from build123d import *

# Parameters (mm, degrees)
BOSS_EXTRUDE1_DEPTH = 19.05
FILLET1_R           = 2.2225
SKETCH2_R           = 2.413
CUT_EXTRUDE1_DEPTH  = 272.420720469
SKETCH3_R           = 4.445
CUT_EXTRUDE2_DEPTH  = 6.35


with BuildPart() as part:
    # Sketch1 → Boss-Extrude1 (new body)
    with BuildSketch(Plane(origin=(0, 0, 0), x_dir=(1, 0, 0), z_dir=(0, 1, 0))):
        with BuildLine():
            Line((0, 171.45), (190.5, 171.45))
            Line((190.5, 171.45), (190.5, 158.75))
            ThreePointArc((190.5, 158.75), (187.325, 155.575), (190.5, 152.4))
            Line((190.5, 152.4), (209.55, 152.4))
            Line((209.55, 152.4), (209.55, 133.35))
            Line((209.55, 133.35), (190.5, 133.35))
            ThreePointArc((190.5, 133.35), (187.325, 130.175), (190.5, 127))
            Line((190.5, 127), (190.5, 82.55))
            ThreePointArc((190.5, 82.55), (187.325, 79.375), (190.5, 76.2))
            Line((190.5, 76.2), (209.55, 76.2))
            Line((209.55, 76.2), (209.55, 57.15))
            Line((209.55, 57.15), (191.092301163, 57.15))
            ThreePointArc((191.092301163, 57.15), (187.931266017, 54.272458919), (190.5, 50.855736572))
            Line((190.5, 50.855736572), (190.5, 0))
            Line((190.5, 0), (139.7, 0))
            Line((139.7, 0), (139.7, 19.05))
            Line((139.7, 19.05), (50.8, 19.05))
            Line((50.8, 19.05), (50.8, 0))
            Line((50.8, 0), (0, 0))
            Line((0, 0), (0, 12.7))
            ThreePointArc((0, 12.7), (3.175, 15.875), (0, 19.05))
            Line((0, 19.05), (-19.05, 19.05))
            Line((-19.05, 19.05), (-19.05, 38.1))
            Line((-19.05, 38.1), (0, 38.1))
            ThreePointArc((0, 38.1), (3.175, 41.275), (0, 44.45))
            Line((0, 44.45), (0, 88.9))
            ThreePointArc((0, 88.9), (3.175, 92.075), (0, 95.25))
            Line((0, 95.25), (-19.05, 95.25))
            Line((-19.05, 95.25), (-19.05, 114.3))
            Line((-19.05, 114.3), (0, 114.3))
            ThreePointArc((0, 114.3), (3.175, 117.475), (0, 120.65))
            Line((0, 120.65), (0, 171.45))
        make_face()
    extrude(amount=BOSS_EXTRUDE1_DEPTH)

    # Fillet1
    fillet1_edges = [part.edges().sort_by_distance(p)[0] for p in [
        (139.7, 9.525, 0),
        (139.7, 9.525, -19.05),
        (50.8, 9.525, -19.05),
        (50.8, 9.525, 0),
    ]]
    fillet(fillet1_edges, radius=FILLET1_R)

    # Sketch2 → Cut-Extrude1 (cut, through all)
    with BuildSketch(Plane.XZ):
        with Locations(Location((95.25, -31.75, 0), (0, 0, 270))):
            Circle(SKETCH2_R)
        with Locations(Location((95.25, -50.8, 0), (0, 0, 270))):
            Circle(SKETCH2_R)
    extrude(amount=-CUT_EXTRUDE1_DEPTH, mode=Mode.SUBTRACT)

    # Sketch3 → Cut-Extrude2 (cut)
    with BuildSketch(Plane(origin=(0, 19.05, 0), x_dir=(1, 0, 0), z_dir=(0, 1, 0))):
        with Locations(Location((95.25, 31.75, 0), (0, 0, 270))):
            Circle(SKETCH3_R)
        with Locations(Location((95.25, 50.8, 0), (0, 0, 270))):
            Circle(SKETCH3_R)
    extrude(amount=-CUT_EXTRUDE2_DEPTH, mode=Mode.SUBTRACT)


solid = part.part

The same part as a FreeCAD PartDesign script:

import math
import FreeCAD as App
import Part
import Sketcher
Q = App.Units.Quantity


def edges_at(feature, points):
    """Names of the edges that pass closest to the given points."""
    edges = feature.Shape.Edges
    near = lambda p: min(range(len(edges)), key=lambda i: edges[i].distToShape(Part.Vertex(*p))[0])
    return sorted({f"Edge{near(p) + 1}" for p in points})

doc = App.newDocument("Part")
body = doc.addObject("PartDesign::Body", "Body")

sketch1 = body.newObject("Sketcher::SketchObject", "Sketch")
sketch1.AttachmentSupport = (doc.getObject("XZ_Plane"), [""])
sketch1.MapMode = "FlatFace"
sketch1.addGeometry([
    Part.LineSegment(App.Vector(190.5, -171.45, 0), App.Vector(0, -171.45, 0)),
    Part.LineSegment(App.Vector(0, -171.45, 0), App.Vector(0, -120.65, 0)),
    Part.ArcOfCircle(Part.Circle(App.Vector(0, -117.475, 0), App.Vector(0, 0, 1), 3.175), math.radians(-90), math.radians(90)),
    Part.LineSegment(App.Vector(0, -114.3, 0), App.Vector(-19.05, -114.3, 0)),
    Part.LineSegment(App.Vector(-19.05, -114.3, 0), App.Vector(-19.05, -95.25, 0)),
    Part.LineSegment(App.Vector(-19.05, -95.25, 0), App.Vector(0, -95.25, 0)),
    Part.ArcOfCircle(Part.Circle(App.Vector(0, -92.075, 0), App.Vector(0, 0, 1), 3.175), math.radians(-90), math.radians(90)),
    Part.LineSegment(App.Vector(0, -88.9, 0), App.Vector(0, -44.45, 0)),
    Part.ArcOfCircle(Part.Circle(App.Vector(0, -41.275, 0), App.Vector(0, 0, 1), 3.175), math.radians(-90), math.radians(90)),
    Part.LineSegment(App.Vector(0, -38.1, 0), App.Vector(-19.05, -38.1, 0)),
    Part.LineSegment(App.Vector(-19.05, -38.1, 0), App.Vector(-19.05, -19.05, 0)),
    Part.LineSegment(App.Vector(-19.05, -19.05, 0), App.Vector(0, -19.05, 0)),
    Part.ArcOfCircle(Part.Circle(App.Vector(0, -15.875, 0), App.Vector(0, 0, 1), 3.175), math.radians(-90), math.radians(90)),
    Part.LineSegment(App.Vector(0, -12.7, 0), App.Vector(0, 0, 0)),
    Part.LineSegment(App.Vector(0, 0, 0), App.Vector(50.8, 0, 0)),
    Part.LineSegment(App.Vector(50.8, 0, 0), App.Vector(50.8, -19.05, 0)),
    Part.LineSegment(App.Vector(50.8, -19.05, 0), App.Vector(139.7, -19.05, 0)),
    Part.LineSegment(App.Vector(139.7, -19.05, 0), App.Vector(139.7, 0, 0)),
    Part.LineSegment(App.Vector(139.7, 0, 0), App.Vector(190.5, 0, 0)),
    Part.LineSegment(App.Vector(190.5, 0, 0), App.Vector(190.5, -50.855737, 0)),
    Part.ArcOfCircle(Part.Circle(App.Vector(191.092301, -53.975, 0), App.Vector(0, 0, 1), 3.175), math.radians(100.751604), math.radians(270)),
    Part.LineSegment(App.Vector(191.092301, -57.15, 0), App.Vector(209.55, -57.15, 0)),
    Part.LineSegment(App.Vector(209.55, -57.15, 0), App.Vector(209.55, -76.2, 0)),
    Part.LineSegment(App.Vector(209.55, -76.2, 0), App.Vector(190.5, -76.2, 0)),
    Part.ArcOfCircle(Part.Circle(App.Vector(190.5, -79.375, 0), App.Vector(0, 0, 1), 3.175), math.radians(90), math.radians(270)),
    Part.LineSegment(App.Vector(190.5, -82.55, 0), App.Vector(190.5, -127, 0)),
    Part.ArcOfCircle(Part.Circle(App.Vector(190.5, -130.175, 0), App.Vector(0, 0, 1), 3.175), math.radians(90), math.radians(270)),
    Part.LineSegment(App.Vector(190.5, -133.35, 0), App.Vector(209.55, -133.35, 0)),
    Part.LineSegment(App.Vector(209.55, -133.35, 0), App.Vector(209.55, -152.4, 0)),
    Part.LineSegment(App.Vector(209.55, -152.4, 0), App.Vector(190.5, -152.4, 0)),
    Part.ArcOfCircle(Part.Circle(App.Vector(190.5, -155.575, 0), App.Vector(0, 0, 1), 3.175), math.radians(90), math.radians(270)),
    Part.LineSegment(App.Vector(190.5, -158.75, 0), App.Vector(190.5, -171.45, 0)),
], False)
sketch1.addConstraint([
    Sketcher.Constraint("Coincident", 0, 2, 1, 1),
    Sketcher.Constraint("Coincident", 1, 2, 2, 1),
    Sketcher.Constraint("Tangent", 2, 2, 3, 1),
    Sketcher.Constraint("Coincident", 3, 2, 4, 1),
    Sketcher.Constraint("Coincident", 4, 2, 5, 1),
    Sketcher.Constraint("Tangent", 5, 2, 6, 1),
    Sketcher.Constraint("Coincident", 6, 2, 7, 1),
    Sketcher.Constraint("Coincident", 7, 2, 8, 1),
    Sketcher.Constraint("Tangent", 8, 2, 9, 1),
    Sketcher.Constraint("Coincident", 9, 2, 10, 1),
    Sketcher.Constraint("Coincident", 10, 2, 11, 1),
    Sketcher.Constraint("Tangent", 11, 2, 12, 1),
    Sketcher.Constraint("Coincident", 12, 2, 13, 1),
    Sketcher.Constraint("Coincident", 13, 2, 14, 1),
    Sketcher.Constraint("Coincident", 14, 2, 15, 1),
    Sketcher.Constraint("Coincident", 15, 2, 16, 1),
    Sketcher.Constraint("Coincident", 16, 2, 17, 1),
    Sketcher.Constraint("Coincident", 17, 2, 18, 1),
    Sketcher.Constraint("Coincident", 18, 2, 19, 1),
    Sketcher.Constraint("Coincident", 19, 2, 20, 1),
    Sketcher.Constraint("Tangent", 20, 2, 21, 1),
    Sketcher.Constraint("Coincident", 21, 2, 22, 1),
    Sketcher.Constraint("Coincident", 22, 2, 23, 1),
    Sketcher.Constraint("Tangent", 23, 2, 24, 1),
    Sketcher.Constraint("Coincident", 24, 2, 25, 1),
    Sketcher.Constraint("Coincident", 25, 2, 26, 1),
    Sketcher.Constraint("Tangent", 26, 2, 27, 1),
    Sketcher.Constraint("Coincident", 27, 2, 28, 1),
    Sketcher.Constraint("Coincident", 28, 2, 29, 1),
    Sketcher.Constraint("Tangent", 29, 2, 30, 1),
    Sketcher.Constraint("Coincident", 30, 2, 31, 1),
    Sketcher.Constraint("Coincident", 31, 2, 0, 1),
    Sketcher.Constraint("Horizontal", 0),
    Sketcher.Constraint("Vertical", 1),
    Sketcher.Constraint("Horizontal", 3),
    Sketcher.Constraint("Vertical", 4),
    Sketcher.Constraint("Horizontal", 5),
    Sketcher.Constraint("Vertical", 7),
    Sketcher.Constraint("Horizontal", 9),
    Sketcher.Constraint("Vertical", 10),
    Sketcher.Constraint("Horizontal", 11),
    Sketcher.Constraint("Vertical", 13),
    Sketcher.Constraint("Horizontal", 14),
    Sketcher.Constraint("Vertical", 15),
    Sketcher.Constraint("Horizontal", 16),
    Sketcher.Constraint("Vertical", 17),
    Sketcher.Constraint("Horizontal", 18),
    Sketcher.Constraint("Vertical", 19),
    Sketcher.Constraint("Horizontal", 21),
    Sketcher.Constraint("Vertical", 22),
    Sketcher.Constraint("Horizontal", 23),
    Sketcher.Constraint("Vertical", 25),
    Sketcher.Constraint("Horizontal", 27),
    Sketcher.Constraint("Vertical", 28),
    Sketcher.Constraint("Horizontal", 29),
    Sketcher.Constraint("Vertical", 31),
    Sketcher.Constraint("Coincident", 13, 2, -1, 1),
    Sketcher.Constraint("Equal", 2, 6),
    Sketcher.Constraint("Equal", 6, 8),
    Sketcher.Constraint("Equal", 8, 12),
    Sketcher.Constraint("Equal", 12, 20),
    Sketcher.Constraint("Equal", 20, 24),
    Sketcher.Constraint("Equal", 24, 26),
    Sketcher.Constraint("Equal", 26, 30),
    Sketcher.Constraint("PointOnObject", 2, 3, -2),
    Sketcher.Constraint("PointOnObject", 6, 3, -2),
    Sketcher.Constraint("PointOnObject", 8, 3, -2),
    Sketcher.Constraint("PointOnObject", 12, 3, -2),
    Sketcher.Constraint("PointOnObject", 0, 2, -2),
    Sketcher.Constraint("PointOnObject", 6, 2, -2),
    Sketcher.Constraint("PointOnObject", 17, 2, -1),
    Sketcher.Constraint("Horizontal", 11, 2, 15, 2),
    Sketcher.Constraint("Vertical", 24, 3, 26, 3),
    Sketcher.Constraint("Vertical", 26, 3, 30, 3),
    Sketcher.Constraint("Vertical", 4, 2, 9, 2),
    Sketcher.Constraint("Vertical", 30, 3, 18, 2),
    Sketcher.Constraint("Vertical", 23, 2, 24, 2),
    Sketcher.Constraint("Vertical", 22, 2, 27, 2),
    Sketcher.Constraint("Vertical", 29, 2, 30, 2),
    Sketcher.Constraint("Equal", 14, 18),
    Sketcher.Constraint("Equal", 11, 23),
    Sketcher.Constraint("Equal", 18, 1),
    Sketcher.Constraint("Equal", 29, 4),
    Sketcher.Constraint("Equal", 4, 10),
    Sketcher.Constraint("Equal", 10, 15),
    Sketcher.Constraint("Equal", 17, 22),
    Sketcher.Constraint("Equal", 7, 25),
    Sketcher.Constraint("Equal", 22, 28),
    Sketcher.Constraint("Equal", 13, 31),
    Sketcher.Constraint("DistanceX", 14, 1, 14, 2, Q("2 in")),
    Sketcher.Constraint("DistanceX", 0, 2, 0, 1, Q("7.5 in")),
    Sketcher.Constraint("DistanceY", 13, 1, 13, 2, Q("0.5 in")),
    Sketcher.Constraint("DistanceY", 22, 2, -1, 1, Q("3 in")),
    Sketcher.Constraint("DistanceY", 25, 2, -1, 1, Q("5 in")),
    Sketcher.Constraint("DistanceX", 21, 1, 21, 2, Q("18.457699 mm")),
])
pad1 = body.newObject("PartDesign::Pad", "Pad")
pad1.Profile = sketch1
pad1.Length = Q("0.75 in")
pad1.Reversed = True
doc.recompute()

fillet = body.newObject("PartDesign::Fillet", "Fillet")
fillet.Base = (pad1, edges_at(pad1, [
    (139.7, 9.525, 0),
    (139.7, 9.525, -19.05),
    (50.8, 9.525, -19.05),
    (50.8, 9.525, 0),
]))
fillet.Radius = Q("0.0875 in")

sketch2 = body.newObject("Sketcher::SketchObject", "Sketch001")
sketch2.AttachmentSupport = (doc.getObject("XZ_Plane"), [""])
sketch2.MapMode = "FlatFace"
sketch2.addGeometry([
    Part.Circle(App.Vector(95.25, -31.75, 0), App.Vector(0, 0, 1), 2.413),
    Part.Circle(App.Vector(95.25, -50.8, 0), App.Vector(0, 0, 1), 2.413),
], False)
sketch2.addConstraint([
    Sketcher.Constraint("Equal", 0, 1),
    Sketcher.Constraint("Vertical", 0, 3, 1, 3),
    Sketcher.Constraint("Diameter", 0, Q("0.19 in")),
    Sketcher.Constraint("DistanceY", 1, 3, -1, 1, Q("2 in")),
    Sketcher.Constraint("DistanceX", -1, 1, 0, 3, Q("3.75 in")),
    Sketcher.Constraint("DistanceY", 0, 3, -1, 1, Q("1.25 in")),
])
pocket1 = body.newObject("PartDesign::Pocket", "Pocket")
pocket1.Profile = sketch2
pocket1.Type = "ThroughAll"

sketch3 = body.newObject("Sketcher::SketchObject", "Sketch002")
sketch3.AttachmentSupport = (doc.getObject("XZ_Plane"), [""])
sketch3.MapMode = "FlatFace"
sketch3.AttachmentOffset = App.Placement(App.Vector(0, 0, -0.75 * 25.4), App.Rotation())
sketch3.addGeometry([
    Part.Circle(App.Vector(95.25, -31.75, 0), App.Vector(0, 0, 1), 4.445),
    Part.Circle(App.Vector(95.25, -50.8, 0), App.Vector(0, 0, 1), 4.445),
], False)
sketch3.addConstraint([
    Sketcher.Constraint("Equal", 0, 1),
    Sketcher.Constraint("Vertical", 0, 3, 1, 3),
    Sketcher.Constraint("Diameter", 0, Q("0.35 in")),
    Sketcher.Constraint("DistanceY", 1, 3, -1, 1, Q("2 in")),
    Sketcher.Constraint("DistanceX", -1, 1, 0, 3, Q("3.75 in")),
    Sketcher.Constraint("DistanceY", 0, 3, -1, 1, Q("1.25 in")),
])
pocket2 = body.newObject("PartDesign::Pocket", "Pocket001")
pocket2.Profile = sketch3
pocket2.Length = Q("0.25 in")
pocket2.Reversed = True

doc.recompute()
